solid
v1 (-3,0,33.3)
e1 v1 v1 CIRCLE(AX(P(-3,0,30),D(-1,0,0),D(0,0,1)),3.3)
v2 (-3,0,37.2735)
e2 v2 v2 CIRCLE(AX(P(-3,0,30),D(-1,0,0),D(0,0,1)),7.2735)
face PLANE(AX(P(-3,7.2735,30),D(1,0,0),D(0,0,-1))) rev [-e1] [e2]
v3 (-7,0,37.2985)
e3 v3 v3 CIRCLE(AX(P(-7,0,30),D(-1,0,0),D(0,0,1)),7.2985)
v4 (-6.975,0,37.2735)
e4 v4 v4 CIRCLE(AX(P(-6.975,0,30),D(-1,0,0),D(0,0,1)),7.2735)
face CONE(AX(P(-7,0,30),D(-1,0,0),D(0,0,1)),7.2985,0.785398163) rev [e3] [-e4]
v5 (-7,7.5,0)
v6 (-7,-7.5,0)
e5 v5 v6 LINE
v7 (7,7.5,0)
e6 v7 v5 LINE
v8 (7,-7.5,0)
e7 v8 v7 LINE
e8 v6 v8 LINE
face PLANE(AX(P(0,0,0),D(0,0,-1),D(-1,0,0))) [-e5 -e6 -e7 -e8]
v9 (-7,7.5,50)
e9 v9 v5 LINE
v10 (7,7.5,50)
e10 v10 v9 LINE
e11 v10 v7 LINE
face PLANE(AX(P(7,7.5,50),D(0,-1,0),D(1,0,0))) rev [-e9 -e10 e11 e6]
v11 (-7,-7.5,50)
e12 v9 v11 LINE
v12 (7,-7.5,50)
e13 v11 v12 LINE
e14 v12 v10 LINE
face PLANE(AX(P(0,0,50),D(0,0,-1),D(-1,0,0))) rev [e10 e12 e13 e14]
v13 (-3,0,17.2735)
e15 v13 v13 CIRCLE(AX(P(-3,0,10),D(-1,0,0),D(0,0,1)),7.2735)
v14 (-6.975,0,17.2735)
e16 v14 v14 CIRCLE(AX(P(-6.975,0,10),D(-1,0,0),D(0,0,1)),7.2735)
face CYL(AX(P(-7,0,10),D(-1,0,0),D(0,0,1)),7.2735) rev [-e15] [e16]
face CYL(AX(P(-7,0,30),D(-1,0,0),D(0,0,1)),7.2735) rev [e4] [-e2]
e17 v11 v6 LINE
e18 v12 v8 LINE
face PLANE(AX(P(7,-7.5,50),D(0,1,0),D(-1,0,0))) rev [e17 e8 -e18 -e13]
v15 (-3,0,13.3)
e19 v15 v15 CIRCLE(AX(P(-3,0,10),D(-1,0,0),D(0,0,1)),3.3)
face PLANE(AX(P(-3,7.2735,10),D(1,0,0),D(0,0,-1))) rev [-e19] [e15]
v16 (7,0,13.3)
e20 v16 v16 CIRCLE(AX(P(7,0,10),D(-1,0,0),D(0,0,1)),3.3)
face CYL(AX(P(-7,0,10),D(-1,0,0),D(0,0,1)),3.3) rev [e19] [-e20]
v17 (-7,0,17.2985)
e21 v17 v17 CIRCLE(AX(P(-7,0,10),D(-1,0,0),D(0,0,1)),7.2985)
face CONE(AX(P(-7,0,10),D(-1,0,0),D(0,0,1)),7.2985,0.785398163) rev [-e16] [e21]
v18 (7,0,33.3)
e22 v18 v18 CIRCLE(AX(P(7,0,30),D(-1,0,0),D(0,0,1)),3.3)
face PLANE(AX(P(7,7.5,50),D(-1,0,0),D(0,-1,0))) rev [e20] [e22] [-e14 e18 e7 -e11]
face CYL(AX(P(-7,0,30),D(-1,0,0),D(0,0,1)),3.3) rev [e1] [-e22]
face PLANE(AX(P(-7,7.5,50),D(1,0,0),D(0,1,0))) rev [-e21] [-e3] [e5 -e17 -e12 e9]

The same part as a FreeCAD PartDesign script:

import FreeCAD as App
import Part
import Sketcher
Q = App.Units.Quantity


def add_polygon(sketch, points):
    """Adds a closed chain of lines whose ends are joined by coincident constraints."""
    first, n = sketch.GeometryCount, len(points)
    for a, b in zip(points, points[1:] + points[:1]):
        sketch.addGeometry(Part.LineSegment(App.Vector(*a, 0), App.Vector(*b, 0)), False)
    for i in range(n):
        sketch.addConstraint(Sketcher.Constraint("Coincident", first + i, 2, first + (i + 1) % n, 1))

doc = App.newDocument("Part")
body = doc.addObject("PartDesign::Body", "Body")

# Sketch on XY plane
sketch1 = body.newObject("Sketcher::SketchObject", "Sketch")
sketch1.AttachmentSupport = (doc.getObject("XY_Plane"), [""])
sketch1.MapMode = "FlatFace"
add_polygon(sketch1, [(-7, 7.5), (-7, -7.5), (7, -7.5), (7, 7.5)])  # lines 0-3
sketch1.addConstraint([
    Sketcher.Constraint("Vertical", 0),
    Sketcher.Constraint("Horizontal", 1),
    Sketcher.Constraint("Vertical", 2),
    Sketcher.Constraint("Horizontal", 3),
    Sketcher.Constraint("Symmetric", 0, 2, 2, 2, -1, 1),
    Sketcher.Constraint("DistanceX", 1, 1, 1, 2, Q("14 mm")),
    Sketcher.Constraint("DistanceY", 0, 2, 0, 1, Q("15 mm")),
])
pad1 = body.newObject("PartDesign::Pad", "Pad")
pad1.Profile = sketch1
pad1.Length = 50

# Sketch on XZ plane
sketch2 = body.newObject("Sketcher::SketchObject", "Sketch001")
sketch2.AttachmentSupport = (doc.getObject("XZ_Plane"), [""])
sketch2.MapMode = "FlatFace"
add_polygon(sketch2, [(7, 10), (-7, 10), (-7, 17.2985), (-6.975, 17.2735), (-3, 17.2735), (-3, 13.3), (7, 13.3)])  # lines 0-6
sketch2.addGeometry(Part.LineSegment(App.Vector(-7, 10, 0), App.Vector(7, 10, 0)), True)  # axis
sketch2.addConstraint([
    Sketcher.Constraint("Horizontal", 0),
    Sketcher.Constraint("Vertical", 1),
    Sketcher.Constraint("Horizontal", 3),
    Sketcher.Constraint("Vertical", 4),
    Sketcher.Constraint("Horizontal", 5),
    Sketcher.Constraint("Vertical", 6),
    Sketcher.Constraint("Horizontal", 7),
    Sketcher.Constraint("Coincident", 7, 1, 0, 2),
    Sketcher.Constraint("Vertical", 5, 2, 7, 2),
    Sketcher.Constraint("DistanceX", 0, 2, 0, 1, Q("14 mm")),
    Sketcher.Constraint("DistanceX", 5, 1, 5, 2, Q("10 mm")),
    Sketcher.Constraint("Angle", 2, Q("-45 deg")),
    Sketcher.Constraint("DistanceY", 6, 2, 6, 1, Q("3.3 mm")),
    Sketcher.Constraint("DistanceX", 0, 2, -1, 1, Q("7 mm")),
    Sketcher.Constraint("DistanceY", -1, 1, 0, 2, Q("10 mm")),
    Sketcher.Constraint("DistanceX", 3, 1, 3, 2, Q("3.975 mm")),
    Sketcher.Constraint("DistanceY", 1, 1, 1, 2, Q("7.2985 mm")),
])
groove = body.newObject("PartDesign::Groove", "Groove")
groove.Profile = sketch2
groove.ReferenceAxis = (sketch2, ["Axis0"])
groove.Angle = 360
doc.recompute()

linearpattern = body.newObject("PartDesign::LinearPattern", "LinearPattern")
linearpattern.Originals = [groove]
linearpattern.Direction = (doc.getObject("Z_Axis"), [""])
linearpattern.Mode = "offset"
linearpattern.Offset = 20
linearpattern.Occurrences = 2
body.Tip = linearpattern

doc.recompute()
